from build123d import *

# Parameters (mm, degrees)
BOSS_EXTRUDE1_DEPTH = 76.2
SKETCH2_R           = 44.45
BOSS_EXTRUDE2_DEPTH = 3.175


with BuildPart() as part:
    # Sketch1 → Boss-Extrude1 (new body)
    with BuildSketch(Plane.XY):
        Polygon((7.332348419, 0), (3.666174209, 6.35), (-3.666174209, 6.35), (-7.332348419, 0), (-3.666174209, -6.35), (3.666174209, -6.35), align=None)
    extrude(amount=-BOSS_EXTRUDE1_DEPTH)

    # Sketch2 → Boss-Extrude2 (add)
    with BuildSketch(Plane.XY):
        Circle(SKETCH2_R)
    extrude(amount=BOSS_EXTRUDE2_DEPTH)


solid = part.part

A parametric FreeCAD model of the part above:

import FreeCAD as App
import Part
import Sketcher

V = App.Vector
Q = App.Units.Quantity

doc = App.newDocument("Part")
body = doc.addObject("PartDesign::Body", "Body")

# Sketch on XY plane
sketch1 = body.newObject("Sketcher::SketchObject", "Sketch")
sketch1.AttachmentSupport = (doc.getObject("XY_Plane"), [""])
sketch1.MapMode = "FlatFace"
sketch1.addGeometry(Part.LineSegment(V(7, 0, 0), V(4, 6, 0)), False)
sketch1.addGeometry(Part.LineSegment(V(4, 6, 0), V(-4, 6, 0)), False)
sketch1.addGeometry(Part.LineSegment(V(-4, 6, 0), V(-7, 0, 0)), False)
sketch1.addGeometry(Part.LineSegment(V(-7, 0, 0), V(-4, -6, 0)), False)
sketch1.addGeometry(Part.LineSegment(V(-4, -6, 0), V(4, -6, 0)), False)
sketch1.addGeometry(Part.LineSegment(V(4, -6, 0), V(7, 0, 0)), False)
sketch1.addConstraint(Sketcher.Constraint("Coincident", 0, 2, 1, 1))
sketch1.addConstraint(Sketcher.Constraint("Coincident", 1, 2, 2, 1))
sketch1.addConstraint(Sketcher.Constraint("Coincident", 2, 2, 3, 1))
sketch1.addConstraint(Sketcher.Constraint("Coincident", 3, 2, 4, 1))
sketch1.addConstraint(Sketcher.Constraint("Coincident", 4, 2, 5, 1))
sketch1.addConstraint(Sketcher.Constraint("Coincident", 5, 2, 0, 1))
sketch1.addConstraint(Sketcher.Constraint("Horizontal", 1))
sketch1.addConstraint(Sketcher.Constraint("Horizontal", 4))
sketch1.addConstraint(Sketcher.Constraint("Symmetric", 0, 2, 3, 2, -1, 1))
sketch1.addConstraint(Sketcher.Constraint("Symmetric", 2, 2, 5, 2, -1, 1))
sketch1.addConstraint(Sketcher.Constraint("PointOnObject", 2, 2, -1))
sketch1.addConstraint(Sketcher.Constraint("Parallel", 2, 5))
sketch1.addConstraint(Sketcher.Constraint("Vertical", 1, 2, 3, 2))
sketch1.addConstraint(Sketcher.Constraint("Angle", 0, Q("120 deg")))
sketch1.addConstraint(Sketcher.Constraint("DistanceY", 3, 2, 1, 2, Q("0.5 in")))
sketch1.addConstraint(Sketcher.Constraint("DistanceX", 1, 2, 1, 1, Q("7.332348 mm")))
pad1 = body.newObject("PartDesign::Pad", "Pad")
pad1.Profile = sketch1
pad1.Length = Q("3 in")
pad1.Reversed = True

# Sketch on XY plane
sketch2 = body.newObject("Sketcher::SketchObject", "Sketch001")
sketch2.AttachmentSupport = (doc.getObject("XY_Plane"), [""])
sketch2.MapMode = "FlatFace"
sketch2.addGeometry(Part.Circle(V(0, 0, 0), V(0, 0, 1), 44), False)
sketch2.addConstraint(Sketcher.Constraint("Coincident", 0, 3, -1, 1))
sketch2.addConstraint(Sketcher.Constraint("Diameter", 0, Q("3.5 in")))
pad2 = body.newObject("PartDesign::Pad", "Pad001")
pad2.Profile = sketch2
pad2.Length = Q("0.125 in")

doc.recompute()
